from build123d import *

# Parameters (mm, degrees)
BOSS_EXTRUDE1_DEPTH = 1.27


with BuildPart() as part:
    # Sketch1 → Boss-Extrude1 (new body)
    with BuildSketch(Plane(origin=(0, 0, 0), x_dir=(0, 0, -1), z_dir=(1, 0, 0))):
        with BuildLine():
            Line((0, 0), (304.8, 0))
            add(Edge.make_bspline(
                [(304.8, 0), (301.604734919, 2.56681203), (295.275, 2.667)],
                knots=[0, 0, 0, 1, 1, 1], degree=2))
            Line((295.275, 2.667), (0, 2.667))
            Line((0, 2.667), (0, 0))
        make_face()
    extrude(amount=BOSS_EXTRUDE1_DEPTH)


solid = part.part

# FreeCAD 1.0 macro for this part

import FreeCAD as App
import Part
import Sketcher
from FreeCAD import Vector

doc = App.newDocument("Part")
params = doc.addObject("Spreadsheet::Sheet", "Params")
for row, (alias, value) in enumerate([
    ("pad1_length", "0.05 in"),
], start=1):
    params.set(f"A{row}", alias)
    params.set(f"B{row}", "=" + value)
    params.setAlias(f"B{row}", alias)

body = doc.addObject("PartDesign::Body", "Body")

# Sketch on YZ plane
sketch1 = body.newObject("Sketcher::SketchObject", "Sketch")
sketch1.AttachmentSupport = (doc.getObject("YZ_Plane"), [""])
sketch1.MapMode = "FlatFace"
sketch1.addGeometry([
    Part.LineSegment(Vector(0, 0, 0), Vector(0, -304.8, 0)),
    Part.BSplineCurve([Vector(0, -304.8, 0), Vector(2.566812, -301.604735, 0), Vector(2.667, -295.275, 0)], [3, 3], [0, 1], False, 2, [1, 1, 1], False),
    Part.LineSegment(Vector(2.667, -295.275, 0), Vector(2.667, 0, 0)),
    Part.LineSegment(Vector(2.667, 0, 0), Vector(0, 0, 0)),
], False)
sketch1.addConstraint([
    Sketcher.Constraint("Block", 1),
    Sketcher.Constraint("Coincident", 0, 2, 1, 1),
    Sketcher.Constraint("Coincident", 1, 2, 2, 1),
    Sketcher.Constraint("Coincident", 2, 2, 3, 1),
    Sketcher.Constraint("Coincident", 3, 2, 0, 1),
    Sketcher.Constraint("Vertical", 0),
    Sketcher.Constraint("Vertical", 2),
    Sketcher.Constraint("Horizontal", 3),
    Sketcher.Constraint("PointOnObject", 2, 2, -1),
])
pad1 = body.newObject("PartDesign::Pad", "Pad")
pad1.Profile = sketch1
pad1.setExpression("Length", "Params.pad1_length")

doc.recompute()
